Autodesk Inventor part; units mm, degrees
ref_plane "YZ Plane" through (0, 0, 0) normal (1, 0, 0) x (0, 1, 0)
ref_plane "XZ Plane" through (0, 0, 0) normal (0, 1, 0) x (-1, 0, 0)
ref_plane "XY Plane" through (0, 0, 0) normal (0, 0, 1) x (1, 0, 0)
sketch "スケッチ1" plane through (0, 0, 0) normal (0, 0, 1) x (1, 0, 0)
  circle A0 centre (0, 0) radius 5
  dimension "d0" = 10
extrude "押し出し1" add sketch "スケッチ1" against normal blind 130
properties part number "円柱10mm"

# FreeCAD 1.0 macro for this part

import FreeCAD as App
import Part
import Sketcher
Q = App.Units.Quantity

doc = App.newDocument("Part")
params = doc.addObject("Spreadsheet::Sheet", "Params")
for row, (alias, value) in enumerate([
    ("sketch1_diameter", "10 mm"),
    ("pad1_length", "130 mm"),
], start=1):
    params.set(f"A{row}", alias)
    params.set(f"B{row}", "=" + value)
    params.setAlias(f"B{row}", alias)

body = doc.addObject("PartDesign::Body", "Body")

sketch1 = doc.addObject("Sketcher::SketchObject", "Sketch")
body.addObject(sketch1)
sketch1.AttachmentSupport = (doc.XY_Plane, [""])
sketch1.MapMode = "FlatFace"
sketch1.addGeometry(Part.Circle(App.Vector(0, 0, 0), App.Vector(0, 0, 1), 5), False)
sketch1.addConstraint([
    Sketcher.Constraint("Coincident", 0, 3, -1, 1),
    Sketcher.Constraint("Diameter", 0, Q("10 mm")),
])
sketch1.setExpression("Constraints[1]", "Params.sketch1_diameter")
pad1 = doc.addObject("PartDesign::Pad", "Pad")
body.addObject(pad1)
pad1.Profile = sketch1
pad1.setExpression("Length", "Params.pad1_length")
pad1.Reversed = True

doc.recompute()
